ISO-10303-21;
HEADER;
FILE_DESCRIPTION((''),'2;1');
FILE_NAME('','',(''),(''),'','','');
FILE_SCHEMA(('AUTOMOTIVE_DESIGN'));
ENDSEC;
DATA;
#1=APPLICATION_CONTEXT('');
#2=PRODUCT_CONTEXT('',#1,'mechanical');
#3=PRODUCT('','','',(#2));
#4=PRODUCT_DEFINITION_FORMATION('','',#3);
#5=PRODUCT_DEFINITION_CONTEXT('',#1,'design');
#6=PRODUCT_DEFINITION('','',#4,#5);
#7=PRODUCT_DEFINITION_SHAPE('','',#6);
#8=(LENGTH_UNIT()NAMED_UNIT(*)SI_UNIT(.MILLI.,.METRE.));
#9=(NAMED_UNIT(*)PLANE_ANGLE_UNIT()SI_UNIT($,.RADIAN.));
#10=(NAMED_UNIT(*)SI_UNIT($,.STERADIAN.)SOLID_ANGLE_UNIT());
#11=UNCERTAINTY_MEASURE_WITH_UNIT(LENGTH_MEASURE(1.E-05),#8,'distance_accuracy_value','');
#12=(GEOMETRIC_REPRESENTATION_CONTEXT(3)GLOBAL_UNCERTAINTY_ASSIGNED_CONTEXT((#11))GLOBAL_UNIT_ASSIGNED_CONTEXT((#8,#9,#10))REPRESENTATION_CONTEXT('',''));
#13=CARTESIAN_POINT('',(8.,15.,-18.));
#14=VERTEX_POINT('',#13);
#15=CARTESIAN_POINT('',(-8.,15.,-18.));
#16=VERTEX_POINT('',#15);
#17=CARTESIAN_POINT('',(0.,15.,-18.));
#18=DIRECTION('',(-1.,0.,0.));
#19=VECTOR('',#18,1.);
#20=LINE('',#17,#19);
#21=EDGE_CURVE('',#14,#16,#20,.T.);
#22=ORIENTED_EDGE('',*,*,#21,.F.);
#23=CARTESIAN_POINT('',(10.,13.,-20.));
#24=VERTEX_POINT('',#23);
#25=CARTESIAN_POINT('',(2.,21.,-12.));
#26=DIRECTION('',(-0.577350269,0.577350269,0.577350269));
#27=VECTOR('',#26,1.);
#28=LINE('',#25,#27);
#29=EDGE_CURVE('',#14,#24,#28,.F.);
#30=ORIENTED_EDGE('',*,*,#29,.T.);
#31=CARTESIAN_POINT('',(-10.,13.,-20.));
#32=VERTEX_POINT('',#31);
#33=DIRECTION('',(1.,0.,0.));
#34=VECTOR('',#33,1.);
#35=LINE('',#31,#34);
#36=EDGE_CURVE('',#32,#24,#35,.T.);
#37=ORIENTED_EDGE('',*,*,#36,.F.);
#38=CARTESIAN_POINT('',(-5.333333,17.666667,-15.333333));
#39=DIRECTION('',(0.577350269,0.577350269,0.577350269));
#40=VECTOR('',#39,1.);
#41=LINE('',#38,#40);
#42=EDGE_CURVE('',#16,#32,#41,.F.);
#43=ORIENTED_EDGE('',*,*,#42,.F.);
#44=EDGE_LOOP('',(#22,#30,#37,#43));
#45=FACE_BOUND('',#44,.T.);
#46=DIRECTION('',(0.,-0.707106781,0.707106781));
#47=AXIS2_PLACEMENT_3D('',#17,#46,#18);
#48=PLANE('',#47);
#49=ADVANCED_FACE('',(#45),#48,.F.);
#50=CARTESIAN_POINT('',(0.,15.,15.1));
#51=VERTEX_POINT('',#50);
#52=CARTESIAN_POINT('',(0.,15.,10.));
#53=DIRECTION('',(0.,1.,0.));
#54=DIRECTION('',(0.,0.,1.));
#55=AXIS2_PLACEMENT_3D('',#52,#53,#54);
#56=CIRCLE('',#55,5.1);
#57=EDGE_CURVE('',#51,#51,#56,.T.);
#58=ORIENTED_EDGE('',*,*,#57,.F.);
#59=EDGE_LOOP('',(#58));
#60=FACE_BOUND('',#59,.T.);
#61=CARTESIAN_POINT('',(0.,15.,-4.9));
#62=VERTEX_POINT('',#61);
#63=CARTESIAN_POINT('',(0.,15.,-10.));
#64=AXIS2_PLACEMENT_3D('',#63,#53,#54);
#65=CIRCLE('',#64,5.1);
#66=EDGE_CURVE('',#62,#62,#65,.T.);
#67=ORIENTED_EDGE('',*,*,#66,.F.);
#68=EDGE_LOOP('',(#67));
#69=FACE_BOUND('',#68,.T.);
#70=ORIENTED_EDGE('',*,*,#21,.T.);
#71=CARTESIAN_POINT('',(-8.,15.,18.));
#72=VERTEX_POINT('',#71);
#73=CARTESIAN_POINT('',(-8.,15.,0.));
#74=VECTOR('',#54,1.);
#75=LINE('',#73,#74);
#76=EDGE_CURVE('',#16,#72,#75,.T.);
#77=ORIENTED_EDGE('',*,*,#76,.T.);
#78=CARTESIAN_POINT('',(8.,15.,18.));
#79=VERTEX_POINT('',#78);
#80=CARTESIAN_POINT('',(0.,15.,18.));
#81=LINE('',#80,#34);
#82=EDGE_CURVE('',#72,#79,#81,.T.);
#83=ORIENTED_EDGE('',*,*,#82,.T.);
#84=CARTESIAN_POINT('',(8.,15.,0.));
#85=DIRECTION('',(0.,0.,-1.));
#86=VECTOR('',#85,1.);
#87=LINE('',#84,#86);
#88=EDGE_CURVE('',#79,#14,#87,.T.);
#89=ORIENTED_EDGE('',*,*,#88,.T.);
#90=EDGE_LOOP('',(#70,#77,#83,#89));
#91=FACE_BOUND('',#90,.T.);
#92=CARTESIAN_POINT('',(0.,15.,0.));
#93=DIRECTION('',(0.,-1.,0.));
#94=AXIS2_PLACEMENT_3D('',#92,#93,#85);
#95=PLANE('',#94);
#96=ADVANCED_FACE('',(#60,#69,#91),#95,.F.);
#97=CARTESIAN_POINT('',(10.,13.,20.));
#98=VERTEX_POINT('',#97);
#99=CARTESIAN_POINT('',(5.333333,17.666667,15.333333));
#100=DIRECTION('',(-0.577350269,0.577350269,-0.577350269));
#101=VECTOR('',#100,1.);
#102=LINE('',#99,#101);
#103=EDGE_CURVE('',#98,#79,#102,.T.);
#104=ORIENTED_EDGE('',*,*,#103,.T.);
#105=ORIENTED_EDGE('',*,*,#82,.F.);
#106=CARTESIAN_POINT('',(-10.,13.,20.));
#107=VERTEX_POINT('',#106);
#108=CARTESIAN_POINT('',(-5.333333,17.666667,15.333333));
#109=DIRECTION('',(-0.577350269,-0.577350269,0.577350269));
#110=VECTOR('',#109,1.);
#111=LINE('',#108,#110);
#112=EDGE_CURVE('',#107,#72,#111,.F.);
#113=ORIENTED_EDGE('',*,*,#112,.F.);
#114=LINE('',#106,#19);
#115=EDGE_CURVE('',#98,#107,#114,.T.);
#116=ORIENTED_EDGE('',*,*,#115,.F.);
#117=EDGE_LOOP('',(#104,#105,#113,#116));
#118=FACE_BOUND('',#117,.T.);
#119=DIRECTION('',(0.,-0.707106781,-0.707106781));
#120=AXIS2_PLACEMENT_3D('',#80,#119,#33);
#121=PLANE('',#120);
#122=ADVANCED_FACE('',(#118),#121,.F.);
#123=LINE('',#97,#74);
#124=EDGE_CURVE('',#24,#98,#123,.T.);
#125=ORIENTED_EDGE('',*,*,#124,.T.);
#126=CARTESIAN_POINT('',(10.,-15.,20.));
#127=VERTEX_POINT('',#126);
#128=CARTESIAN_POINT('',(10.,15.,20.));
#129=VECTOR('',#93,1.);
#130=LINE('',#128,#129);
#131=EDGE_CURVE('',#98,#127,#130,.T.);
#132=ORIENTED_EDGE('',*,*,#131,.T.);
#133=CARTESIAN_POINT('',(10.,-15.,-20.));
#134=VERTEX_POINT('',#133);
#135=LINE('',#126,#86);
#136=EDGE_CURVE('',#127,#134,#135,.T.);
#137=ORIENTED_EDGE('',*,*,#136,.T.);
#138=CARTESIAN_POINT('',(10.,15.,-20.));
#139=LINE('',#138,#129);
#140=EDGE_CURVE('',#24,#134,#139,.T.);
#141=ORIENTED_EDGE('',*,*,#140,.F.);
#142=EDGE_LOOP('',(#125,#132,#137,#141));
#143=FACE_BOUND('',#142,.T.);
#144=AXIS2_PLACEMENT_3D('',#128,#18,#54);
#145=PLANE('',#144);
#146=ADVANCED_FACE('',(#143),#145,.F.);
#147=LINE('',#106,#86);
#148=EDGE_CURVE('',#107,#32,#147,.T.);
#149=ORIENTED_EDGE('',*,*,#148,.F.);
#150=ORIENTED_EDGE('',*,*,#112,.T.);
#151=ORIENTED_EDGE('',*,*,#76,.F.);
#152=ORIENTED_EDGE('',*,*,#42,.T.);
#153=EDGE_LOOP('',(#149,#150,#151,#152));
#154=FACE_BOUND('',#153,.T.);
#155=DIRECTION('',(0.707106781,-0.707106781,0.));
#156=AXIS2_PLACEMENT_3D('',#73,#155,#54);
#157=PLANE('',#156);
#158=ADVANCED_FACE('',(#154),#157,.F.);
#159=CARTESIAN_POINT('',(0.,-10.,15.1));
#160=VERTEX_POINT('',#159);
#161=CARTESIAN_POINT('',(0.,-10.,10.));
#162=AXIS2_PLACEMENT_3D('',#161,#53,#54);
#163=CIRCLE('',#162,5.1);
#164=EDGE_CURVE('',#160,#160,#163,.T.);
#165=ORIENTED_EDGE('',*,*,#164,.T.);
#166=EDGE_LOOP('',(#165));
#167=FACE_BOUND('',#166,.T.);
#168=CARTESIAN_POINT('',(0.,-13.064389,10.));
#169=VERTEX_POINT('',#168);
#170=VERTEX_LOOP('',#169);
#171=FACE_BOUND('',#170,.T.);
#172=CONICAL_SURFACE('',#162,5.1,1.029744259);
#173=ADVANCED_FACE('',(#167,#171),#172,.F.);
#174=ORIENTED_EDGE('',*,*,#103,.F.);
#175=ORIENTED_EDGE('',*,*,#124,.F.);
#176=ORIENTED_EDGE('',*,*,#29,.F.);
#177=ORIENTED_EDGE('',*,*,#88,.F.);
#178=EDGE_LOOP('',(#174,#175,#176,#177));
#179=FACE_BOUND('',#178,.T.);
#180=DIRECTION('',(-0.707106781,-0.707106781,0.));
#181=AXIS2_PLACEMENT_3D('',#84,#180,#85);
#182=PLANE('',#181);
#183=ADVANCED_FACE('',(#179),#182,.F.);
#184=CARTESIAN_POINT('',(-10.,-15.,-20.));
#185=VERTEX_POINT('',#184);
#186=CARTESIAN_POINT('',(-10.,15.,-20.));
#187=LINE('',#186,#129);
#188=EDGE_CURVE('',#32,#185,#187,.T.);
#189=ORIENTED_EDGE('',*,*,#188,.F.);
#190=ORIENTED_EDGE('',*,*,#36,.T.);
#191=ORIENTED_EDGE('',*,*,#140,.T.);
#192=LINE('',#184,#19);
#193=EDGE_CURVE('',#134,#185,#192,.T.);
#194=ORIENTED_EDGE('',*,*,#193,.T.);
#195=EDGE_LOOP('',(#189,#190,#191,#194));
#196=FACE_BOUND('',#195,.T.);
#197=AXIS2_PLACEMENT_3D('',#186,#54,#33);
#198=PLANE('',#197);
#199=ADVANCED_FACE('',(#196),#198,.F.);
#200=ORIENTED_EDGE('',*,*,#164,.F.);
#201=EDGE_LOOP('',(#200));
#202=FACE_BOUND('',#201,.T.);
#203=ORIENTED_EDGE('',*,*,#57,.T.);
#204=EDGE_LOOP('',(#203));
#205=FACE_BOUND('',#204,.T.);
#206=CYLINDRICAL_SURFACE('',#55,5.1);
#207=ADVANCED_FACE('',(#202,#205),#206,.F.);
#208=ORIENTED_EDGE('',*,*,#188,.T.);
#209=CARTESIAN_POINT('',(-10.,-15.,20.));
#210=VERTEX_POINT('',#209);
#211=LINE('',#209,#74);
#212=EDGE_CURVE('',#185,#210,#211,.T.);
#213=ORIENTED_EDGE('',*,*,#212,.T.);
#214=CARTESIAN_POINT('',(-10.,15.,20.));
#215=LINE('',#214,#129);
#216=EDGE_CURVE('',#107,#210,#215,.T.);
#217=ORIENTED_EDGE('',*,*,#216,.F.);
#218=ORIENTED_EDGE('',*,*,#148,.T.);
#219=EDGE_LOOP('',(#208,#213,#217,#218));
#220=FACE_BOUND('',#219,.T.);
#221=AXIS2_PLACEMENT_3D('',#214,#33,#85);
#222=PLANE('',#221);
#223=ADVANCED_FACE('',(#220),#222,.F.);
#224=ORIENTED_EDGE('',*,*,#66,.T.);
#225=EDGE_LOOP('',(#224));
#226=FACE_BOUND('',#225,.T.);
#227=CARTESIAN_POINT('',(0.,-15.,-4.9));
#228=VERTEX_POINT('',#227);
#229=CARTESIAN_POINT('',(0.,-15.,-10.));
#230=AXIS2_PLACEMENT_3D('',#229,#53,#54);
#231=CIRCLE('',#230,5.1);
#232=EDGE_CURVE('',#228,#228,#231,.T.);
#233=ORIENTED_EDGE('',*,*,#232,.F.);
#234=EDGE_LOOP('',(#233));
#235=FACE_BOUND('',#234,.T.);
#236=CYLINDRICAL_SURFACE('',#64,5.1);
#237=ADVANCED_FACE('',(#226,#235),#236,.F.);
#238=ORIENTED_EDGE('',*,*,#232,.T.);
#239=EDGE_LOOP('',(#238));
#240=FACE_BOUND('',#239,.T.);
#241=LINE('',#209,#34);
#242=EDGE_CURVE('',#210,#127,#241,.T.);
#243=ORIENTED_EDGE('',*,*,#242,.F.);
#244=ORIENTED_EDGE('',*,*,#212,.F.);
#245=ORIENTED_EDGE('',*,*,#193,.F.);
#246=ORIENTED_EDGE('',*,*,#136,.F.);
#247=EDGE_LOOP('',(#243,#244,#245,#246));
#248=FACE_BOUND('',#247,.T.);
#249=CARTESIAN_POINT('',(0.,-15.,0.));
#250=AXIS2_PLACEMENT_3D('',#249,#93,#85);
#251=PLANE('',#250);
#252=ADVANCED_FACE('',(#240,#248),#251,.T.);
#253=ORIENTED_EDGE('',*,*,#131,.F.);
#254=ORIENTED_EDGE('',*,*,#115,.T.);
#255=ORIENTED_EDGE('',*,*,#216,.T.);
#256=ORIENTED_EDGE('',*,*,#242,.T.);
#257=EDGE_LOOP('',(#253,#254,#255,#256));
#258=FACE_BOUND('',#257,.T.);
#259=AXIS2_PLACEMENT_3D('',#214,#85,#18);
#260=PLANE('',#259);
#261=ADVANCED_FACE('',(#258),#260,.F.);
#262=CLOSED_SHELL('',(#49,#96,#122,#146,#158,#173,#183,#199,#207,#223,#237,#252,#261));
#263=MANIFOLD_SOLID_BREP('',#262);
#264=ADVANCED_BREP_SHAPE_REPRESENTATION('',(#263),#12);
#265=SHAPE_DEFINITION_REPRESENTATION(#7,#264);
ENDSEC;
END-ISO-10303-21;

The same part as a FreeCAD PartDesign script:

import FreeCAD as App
import Part
import Sketcher
Q = App.Units.Quantity


def edges_at(feature, points):
    """Names of the edges that pass closest to the given points."""
    edges = feature.Shape.Edges
    near = lambda p: min(range(len(edges)), key=lambda i: edges[i].distToShape(Part.Vertex(*p))[0])
    return sorted({f"Edge{near(p) + 1}" for p in points})

doc = App.newDocument("Part")
body = doc.addObject("PartDesign::Body", "Body")

# Sketch on XZ plane
sketch1 = doc.addObject("Sketcher::SketchObject", "Sketch")
body.addObject(sketch1)
sketch1.AttachmentSupport = (doc.XZ_Plane, [""])
sketch1.MapMode = "FlatFace"
sketch1.addGeometry([
    Part.LineSegment(App.Vector(-10, -20, 0), App.Vector(-10, 20, 0)),
    Part.LineSegment(App.Vector(-10, 20, 0), App.Vector(10, 20, 0)),
    Part.LineSegment(App.Vector(10, 20, 0), App.Vector(10, -20, 0)),
    Part.LineSegment(App.Vector(10, -20, 0), App.Vector(-10, -20, 0)),
], False)
sketch1.addConstraint([
    Sketcher.Constraint("Coincident", 0, 2, 1, 1),
    Sketcher.Constraint("Coincident", 1, 2, 2, 1),
    Sketcher.Constraint("Coincident", 2, 2, 3, 1),
    Sketcher.Constraint("Coincident", 3, 2, 0, 1),
    Sketcher.Constraint("Vertical", 0),
    Sketcher.Constraint("Horizontal", 1),
    Sketcher.Constraint("Vertical", 2),
    Sketcher.Constraint("Horizontal", 3),
    Sketcher.Constraint("Symmetric", 0, 2, 2, 2, -1, 1),
    Sketcher.Constraint("DistanceX", 1, 1, 1, 2, Q("20 mm")),
    Sketcher.Constraint("DistanceY", 0, 1, 0, 2, Q("40 mm")),
])
pad1 = doc.addObject("PartDesign::Pad", "Pad")
body.addObject(pad1)
pad1.Profile = sketch1
pad1.Length = 30
pad1.Midplane = True

# Sketch on XZ plane
sketch2 = doc.addObject("Sketcher::SketchObject", "Sketch001")
body.addObject(sketch2)
sketch2.AttachmentSupport = (doc.XZ_Plane, [""])
sketch2.MapMode = "FlatFace"
sketch2.AttachmentOffset = App.Placement(App.Vector(0, 0, -15), App.Rotation())
sketch2.addGeometry(Part.Circle(App.Vector(0, -10, 0), App.Vector(0, 0, 1), 5), False)
sketch2.addConstraint([
    Sketcher.Constraint("PointOnObject", 0, 3, -2),
    Sketcher.Constraint("Diameter", 0, Q("10.2 mm")),
    Sketcher.Constraint("DistanceY", 0, 3, -1, 1, Q("10 mm")),
])
doc.recompute()
hole = doc.addObject("PartDesign::Hole", "Hole")
body.addObject(hole)
hole.Profile = sketch2
hole.ThreadType = "None"
hole.Diameter = 10.2
hole.DepthType = "ThroughAll"
hole.Reversed = True

# Sketch on XZ plane
sketch3 = doc.addObject("Sketcher::SketchObject", "Sketch002")
body.addObject(sketch3)
sketch3.AttachmentSupport = (doc.XZ_Plane, [""])
sketch3.MapMode = "FlatFace"
sketch3.AttachmentOffset = App.Placement(App.Vector(0, 0, -15), App.Rotation())
sketch3.addGeometry(Part.Circle(App.Vector(0, 10, 0), App.Vector(0, 0, 1), 5), False)
sketch3.addConstraint([
    Sketcher.Constraint("PointOnObject", 0, 3, -2),
    Sketcher.Constraint("Diameter", 0, Q("10.2 mm")),
    Sketcher.Constraint("DistanceY", -1, 1, 0, 3, Q("10 mm")),
])
doc.recompute()
hole2 = doc.addObject("PartDesign::Hole", "Hole001")
body.addObject(hole2)
hole2.Profile = sketch3
hole2.ThreadType = "None"
hole2.Diameter = 10.2
hole2.DepthType = "Dimension"
hole2.Depth = 25
hole2.DrillPoint = "Angled"
hole2.DrillPointAngle = 118
hole2.Reversed = True
doc.recompute()

chamfer = doc.addObject("PartDesign::Chamfer", "Chamfer")
body.addObject(chamfer)
chamfer.Base = (hole2, edges_at(hole2, [
    (-10, 15, 0),
    (0, 15, 20),
    (10, 15, 0),
    (0, 15, -20),
]))
chamfer.Size = 2

doc.recompute()
